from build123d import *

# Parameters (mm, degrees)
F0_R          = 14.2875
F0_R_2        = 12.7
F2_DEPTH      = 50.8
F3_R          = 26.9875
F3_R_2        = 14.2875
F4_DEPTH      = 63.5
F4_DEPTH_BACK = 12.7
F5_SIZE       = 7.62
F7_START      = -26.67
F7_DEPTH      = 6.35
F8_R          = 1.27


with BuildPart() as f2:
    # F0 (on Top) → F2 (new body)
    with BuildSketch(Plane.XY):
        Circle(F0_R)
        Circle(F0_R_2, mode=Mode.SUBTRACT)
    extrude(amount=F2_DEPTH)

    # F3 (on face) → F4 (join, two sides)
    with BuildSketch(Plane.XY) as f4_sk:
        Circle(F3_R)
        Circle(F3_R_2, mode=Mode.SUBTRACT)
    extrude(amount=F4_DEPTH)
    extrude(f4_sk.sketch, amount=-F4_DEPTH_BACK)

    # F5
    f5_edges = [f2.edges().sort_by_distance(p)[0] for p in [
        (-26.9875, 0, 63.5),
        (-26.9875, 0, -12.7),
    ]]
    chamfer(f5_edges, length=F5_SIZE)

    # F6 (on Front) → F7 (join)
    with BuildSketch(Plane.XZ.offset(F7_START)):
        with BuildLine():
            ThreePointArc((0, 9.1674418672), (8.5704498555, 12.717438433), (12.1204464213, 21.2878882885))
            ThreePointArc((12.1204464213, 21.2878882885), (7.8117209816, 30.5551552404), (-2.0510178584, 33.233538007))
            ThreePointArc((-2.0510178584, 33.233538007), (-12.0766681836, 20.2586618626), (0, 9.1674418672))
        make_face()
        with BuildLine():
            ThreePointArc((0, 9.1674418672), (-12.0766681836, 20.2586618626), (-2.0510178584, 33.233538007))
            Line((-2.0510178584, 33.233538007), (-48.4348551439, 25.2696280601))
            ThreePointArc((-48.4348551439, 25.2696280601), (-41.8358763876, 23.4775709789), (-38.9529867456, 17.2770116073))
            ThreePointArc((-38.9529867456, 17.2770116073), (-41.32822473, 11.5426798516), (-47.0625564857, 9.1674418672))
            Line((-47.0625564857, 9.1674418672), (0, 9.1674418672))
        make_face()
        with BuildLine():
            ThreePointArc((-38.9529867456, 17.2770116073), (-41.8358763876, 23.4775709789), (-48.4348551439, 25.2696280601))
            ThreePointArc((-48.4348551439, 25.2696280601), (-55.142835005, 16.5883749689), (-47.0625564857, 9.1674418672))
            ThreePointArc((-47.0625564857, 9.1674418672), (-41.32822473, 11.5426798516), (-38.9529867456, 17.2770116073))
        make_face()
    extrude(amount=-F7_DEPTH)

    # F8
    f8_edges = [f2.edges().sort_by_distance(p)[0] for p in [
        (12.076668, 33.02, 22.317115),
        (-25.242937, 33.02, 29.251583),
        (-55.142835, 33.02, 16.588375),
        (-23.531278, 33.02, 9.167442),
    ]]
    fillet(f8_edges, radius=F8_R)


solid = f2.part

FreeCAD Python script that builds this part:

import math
import FreeCAD as App
import Part
import Sketcher
Q = App.Units.Quantity


def edges_at(feature, points):
    """Names of the edges that pass closest to the given points."""
    edges = feature.Shape.Edges
    near = lambda p: min(range(len(edges)), key=lambda i: edges[i].distToShape(Part.Vertex(*p))[0])
    return sorted({f"Edge{near(p) + 1}" for p in points})

doc = App.newDocument("Part")
body = doc.addObject("PartDesign::Body", "Body")

sketch1 = doc.addObject("Sketcher::SketchObject", "Sketch")
body.addObject(sketch1)
sketch1.AttachmentSupport = (doc.XY_Plane, [""])
sketch1.MapMode = "FlatFace"
sketch1.addGeometry([
    Part.Circle(App.Vector(0, 0, 0), App.Vector(0, 0, 1), 14),
    Part.Circle(App.Vector(0, 0, 0), App.Vector(0, 0, 1), 13),
], False)
sketch1.addConstraint([
    Sketcher.Constraint("Coincident", 0, 3, -1, 1),
    Sketcher.Constraint("Coincident", 1, 3, -1, 1),
    Sketcher.Constraint("Diameter", 1, Q("1 in")),
    Sketcher.Constraint("Diameter", 0, Q("1.125 in")),
])
pad1 = doc.addObject("PartDesign::Pad", "Pad")
body.addObject(pad1)
pad1.Profile = sketch1
pad1.Length = Q("2 in")

sketch2 = doc.addObject("Sketcher::SketchObject", "Sketch001")
body.addObject(sketch2)
sketch2.AttachmentSupport = (doc.XY_Plane, [""])
sketch2.MapMode = "FlatFace"
sketch2.addGeometry([
    Part.Circle(App.Vector(0, 0, 0), App.Vector(0, 0, 1), 27),
    Part.Circle(App.Vector(0, 0, 0), App.Vector(0, 0, 1), 14),
], False)
sketch2.addConstraint([
    Sketcher.Constraint("Coincident", 0, 3, -1, 1),
    Sketcher.Constraint("Coincident", 1, 3, -1, 1),
    Sketcher.Constraint("Diameter", 0, Q("2.125 in")),
    Sketcher.Constraint("Diameter", 1, Q("1.125 in")),
])
pad2 = doc.addObject("PartDesign::Pad", "Pad001")
body.addObject(pad2)
pad2.Profile = sketch2
pad2.Type = "TwoLengths"
pad2.Length = Q("2.5 in")
pad2.Length2 = Q("0.5 in")
doc.recompute()

chamfer = doc.addObject("PartDesign::Chamfer", "Chamfer")
body.addObject(chamfer)
chamfer.Base = (pad2, edges_at(pad2, [(-26.988, 0, 63.5), (-26.988, 0, -12.7)]))
chamfer.Size = Q("0.3 in")

sketch3 = doc.addObject("Sketcher::SketchObject", "Sketch002")
body.addObject(sketch3)
sketch3.AttachmentSupport = (doc.XZ_Plane, [""])
sketch3.MapMode = "FlatFace"
sketch3.AttachmentOffset = App.Placement(App.Vector(0, 0, -1.05 * 25.4), App.Rotation())
sketch3.addGeometry([
    Part.ArcOfCircle(Part.Circle(App.Vector(0, 21, 0), App.Vector(0, 0, 1), 12), math.radians(-90), math.radians(100)),
    Part.LineSegment(App.Vector(-2, 33, 0), App.Vector(-48, 25, 0)),
    Part.ArcOfCircle(Part.Circle(App.Vector(-47, 17, 0), App.Vector(0, 0, 1), 8), math.radians(100), math.radians(270)),
    Part.LineSegment(App.Vector(-47, 9, 0), App.Vector(0, 9, 0)),
], False)
sketch3.addConstraint([
    Sketcher.Constraint("Tangent", 0, 2, 1, 1),
    Sketcher.Constraint("Tangent", 1, 2, 2, 1),
    Sketcher.Constraint("Tangent", 2, 2, 3, 1),
    Sketcher.Constraint("Tangent", 3, 2, 0, 1),
    Sketcher.Constraint("Horizontal", 3),
    Sketcher.Constraint("PointOnObject", 0, 3, -2),
    Sketcher.Constraint("Radius", 2, Q("8.10957 mm")),
    Sketcher.Constraint("Radius", 0, Q("12.120446 mm")),
    Sketcher.Constraint("DistanceX", 1, 2, 2, 3, Q("1.372299 mm")),
    Sketcher.Constraint("DistanceY", -1, 1, 0, 3, Q("21.287888 mm")),
])
pad3 = doc.addObject("PartDesign::Pad", "Pad002")
body.addObject(pad3)
pad3.Profile = sketch3
pad3.Length = Q("0.25 in")
pad3.Reversed = True
doc.recompute()

fillet = doc.addObject("PartDesign::Fillet", "Fillet")
body.addObject(fillet)
fillet.Base = (pad3, edges_at(pad3, [
    (12.077, 33.02, 22.317),
    (-25.243, 33.02, 29.252),
    (-55.143, 33.02, 16.588),
    (-23.531, 33.02, 9.167),
]))
fillet.Radius = Q("0.05 in")

doc.recompute()
